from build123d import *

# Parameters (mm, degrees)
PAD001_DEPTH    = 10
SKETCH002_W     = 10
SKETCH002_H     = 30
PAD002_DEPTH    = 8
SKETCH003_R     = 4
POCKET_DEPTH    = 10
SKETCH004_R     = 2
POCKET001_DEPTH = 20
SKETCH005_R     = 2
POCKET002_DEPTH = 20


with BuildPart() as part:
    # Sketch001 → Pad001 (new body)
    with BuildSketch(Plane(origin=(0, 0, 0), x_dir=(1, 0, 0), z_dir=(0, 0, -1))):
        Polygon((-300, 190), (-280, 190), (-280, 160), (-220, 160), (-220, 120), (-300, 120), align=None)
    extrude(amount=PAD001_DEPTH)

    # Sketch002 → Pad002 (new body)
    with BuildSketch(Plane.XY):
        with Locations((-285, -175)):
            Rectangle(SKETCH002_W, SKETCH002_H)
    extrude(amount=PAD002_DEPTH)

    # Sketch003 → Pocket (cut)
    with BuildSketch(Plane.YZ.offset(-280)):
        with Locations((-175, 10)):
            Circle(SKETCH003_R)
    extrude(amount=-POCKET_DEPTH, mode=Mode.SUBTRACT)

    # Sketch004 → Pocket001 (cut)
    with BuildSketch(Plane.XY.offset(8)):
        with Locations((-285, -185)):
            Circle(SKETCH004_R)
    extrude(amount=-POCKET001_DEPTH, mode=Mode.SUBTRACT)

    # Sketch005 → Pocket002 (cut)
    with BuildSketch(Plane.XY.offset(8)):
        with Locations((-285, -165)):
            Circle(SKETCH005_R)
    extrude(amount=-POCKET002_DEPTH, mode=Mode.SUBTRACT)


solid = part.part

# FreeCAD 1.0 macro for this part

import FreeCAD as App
import Part
import Sketcher

doc = App.newDocument("Part")
params = doc.addObject("Spreadsheet::Sheet", "Params")
for row, (alias, value) in enumerate([
    ("sketch1_width", "20 mm"),
    ("sketch1_width2", "80 mm"),
    ("sketch1_height", "70 mm"),
    ("sketch1_height2", "40 mm"),
    ("pad1_length", "10 mm"),
    ("sketch2_width", "10 mm"),
    ("sketch2_height", "30 mm"),
    ("pad2_length", "8 mm"),
    ("sketch3_diameter", "8 mm"),
    ("pocket1_length", "10 mm"),
    ("sketch4_diameter", "4 mm"),
    ("pocket2_length", "20 mm"),
    ("sketch5_diameter", "4 mm"),
    ("pocket3_length", "20 mm"),
], start=1):
    params.set(f"A{row}", alias)
    params.set(f"B{row}", "=" + value)
    params.setAlias(f"B{row}", alias)

body = doc.addObject("PartDesign::Body", "Body")

# Sketch on XY plane
sketch1 = body.newObject("Sketcher::SketchObject", "Sketch")
sketch1.AttachmentSupport = (doc.getObject("XY_Plane"), [""])
sketch1.MapMode = "FlatFace"
sketch1.addGeometry(Part.LineSegment(App.Vector(-280, -190, 0), App.Vector(-300, -190, 0)), False)
sketch1.addGeometry(Part.LineSegment(App.Vector(-300, -190, 0), App.Vector(-300, -120, 0)), False)
sketch1.addGeometry(Part.LineSegment(App.Vector(-300, -120, 0), App.Vector(-220, -120, 0)), False)
sketch1.addGeometry(Part.LineSegment(App.Vector(-220, -120, 0), App.Vector(-220, -160, 0)), False)
sketch1.addGeometry(Part.LineSegment(App.Vector(-220, -160, 0), App.Vector(-280, -160, 0)), False)
sketch1.addGeometry(Part.LineSegment(App.Vector(-280, -160, 0), App.Vector(-280, -190, 0)), False)
sketch1.addConstraint(Sketcher.Constraint("Coincident", 0, 2, 1, 1))
sketch1.addConstraint(Sketcher.Constraint("Coincident", 1, 2, 2, 1))
sketch1.addConstraint(Sketcher.Constraint("Coincident", 2, 2, 3, 1))
sketch1.addConstraint(Sketcher.Constraint("Coincident", 3, 2, 4, 1))
sketch1.addConstraint(Sketcher.Constraint("Coincident", 4, 2, 5, 1))
sketch1.addConstraint(Sketcher.Constraint("Coincident", 5, 2, 0, 1))
sketch1.addConstraint(Sketcher.Constraint("Horizontal", 0))
sketch1.addConstraint(Sketcher.Constraint("Vertical", 1))
sketch1.addConstraint(Sketcher.Constraint("Horizontal", 2))
sketch1.addConstraint(Sketcher.Constraint("Vertical", 3))
sketch1.addConstraint(Sketcher.Constraint("Horizontal", 4))
sketch1.addConstraint(Sketcher.Constraint("Vertical", 5))
sketch1.addConstraint(Sketcher.Constraint("DistanceX", 0, 2, 0, 1, 20.0))
sketch1.addConstraint(Sketcher.Constraint("DistanceX", 2, 1, 2, 2, 80.0))
sketch1.addConstraint(Sketcher.Constraint("DistanceY", 1, 1, 1, 2, 70.0))
sketch1.addConstraint(Sketcher.Constraint("DistanceY", 3, 2, 3, 1, 40.0))
sketch1.addConstraint(Sketcher.Constraint("DistanceX", 0, 2, -1, 1, 300.0))
sketch1.addConstraint(Sketcher.Constraint("DistanceY", 0, 2, -1, 1, 190.0))
sketch1.setExpression("Constraints[12]", "Params.sketch1_width")
sketch1.setExpression("Constraints[13]", "Params.sketch1_width2")
sketch1.setExpression("Constraints[14]", "Params.sketch1_height")
sketch1.setExpression("Constraints[15]", "Params.sketch1_height2")
pad1 = body.newObject("PartDesign::Pad", "Pad")
pad1.Profile = sketch1
pad1.setExpression("Length", "Params.pad1_length")
pad1.Reversed = True

# Sketch on XY plane
sketch2 = body.newObject("Sketcher::SketchObject", "Sketch001")
sketch2.AttachmentSupport = (doc.getObject("XY_Plane"), [""])
sketch2.MapMode = "FlatFace"
sketch2.addGeometry(Part.LineSegment(App.Vector(-290, -160, 0), App.Vector(-290, -190, 0)), False)
sketch2.addGeometry(Part.LineSegment(App.Vector(-290, -190, 0), App.Vector(-280, -190, 0)), False)
sketch2.addGeometry(Part.LineSegment(App.Vector(-280, -190, 0), App.Vector(-280, -160, 0)), False)
sketch2.addGeometry(Part.LineSegment(App.Vector(-280, -160, 0), App.Vector(-290, -160, 0)), False)
sketch2.addConstraint(Sketcher.Constraint("Coincident", 0, 2, 1, 1))
sketch2.addConstraint(Sketcher.Constraint("Coincident", 1, 2, 2, 1))
sketch2.addConstraint(Sketcher.Constraint("Coincident", 2, 2, 3, 1))
sketch2.addConstraint(Sketcher.Constraint("Coincident", 3, 2, 0, 1))
sketch2.addConstraint(Sketcher.Constraint("Vertical", 0))
sketch2.addConstraint(Sketcher.Constraint("Horizontal", 1))
sketch2.addConstraint(Sketcher.Constraint("Vertical", 2))
sketch2.addConstraint(Sketcher.Constraint("Horizontal", 3))
sketch2.addConstraint(Sketcher.Constraint("DistanceX", 1, 1, 1, 2, 10.0))
sketch2.addConstraint(Sketcher.Constraint("DistanceY", 0, 2, 0, 1, 30.0))
sketch2.addConstraint(Sketcher.Constraint("DistanceX", 0, 2, -1, 1, 290.0))
sketch2.addConstraint(Sketcher.Constraint("DistanceY", 0, 2, -1, 1, 190.0))
sketch2.setExpression("Constraints[8]", "Params.sketch2_width")
sketch2.setExpression("Constraints[9]", "Params.sketch2_height")
pad2 = body.newObject("PartDesign::Pad", "Pad001")
pad2.Profile = sketch2
pad2.setExpression("Length", "Params.pad2_length")

# Sketch on YZ plane
sketch3 = body.newObject("Sketcher::SketchObject", "Sketch002")
sketch3.AttachmentSupport = (doc.getObject("YZ_Plane"), [""])
sketch3.MapMode = "FlatFace"
sketch3.AttachmentOffset = App.Placement(App.Vector(0, 0, -280), App.Rotation())
sketch3.addGeometry(Part.Circle(App.Vector(-175, 10, 0), App.Vector(0, 0, 1), 4), False)
sketch3.addConstraint(Sketcher.Constraint("Diameter", 0, 8.0))
sketch3.addConstraint(Sketcher.Constraint("DistanceX", 0, 3, -1, 1, 175.0))
sketch3.addConstraint(Sketcher.Constraint("DistanceY", -1, 1, 0, 3, 10.0))
sketch3.setExpression("Constraints[0]", "Params.sketch3_diameter")
pocket1 = body.newObject("PartDesign::Pocket", "Pocket")
pocket1.Profile = sketch3
pocket1.setExpression("Length", "Params.pocket1_length")

# Sketch on XY plane
sketch4 = body.newObject("Sketcher::SketchObject", "Sketch003")
sketch4.AttachmentSupport = (doc.getObject("XY_Plane"), [""])
sketch4.MapMode = "FlatFace"
sketch4.AttachmentOffset = App.Placement(App.Vector(0, 0, 8), App.Rotation())
sketch4.addGeometry(Part.Circle(App.Vector(-285, -185, 0), App.Vector(0, 0, 1), 2), False)
sketch4.addConstraint(Sketcher.Constraint("Diameter", 0, 4.0))
sketch4.addConstraint(Sketcher.Constraint("DistanceX", 0, 3, -1, 1, 285.0))
sketch4.addConstraint(Sketcher.Constraint("DistanceY", 0, 3, -1, 1, 185.0))
sketch4.setExpression("Constraints[0]", "Params.sketch4_diameter")
pocket2 = body.newObject("PartDesign::Pocket", "Pocket001")
pocket2.Profile = sketch4
pocket2.setExpression("Length", "Params.pocket2_length")

# Sketch on XY plane
sketch5 = body.newObject("Sketcher::SketchObject", "Sketch004")
sketch5.AttachmentSupport = (doc.getObject("XY_Plane"), [""])
sketch5.MapMode = "FlatFace"
sketch5.AttachmentOffset = App.Placement(App.Vector(0, 0, 8), App.Rotation())
sketch5.addGeometry(Part.Circle(App.Vector(-285, -165, 0), App.Vector(0, 0, 1), 2), False)
sketch5.addConstraint(Sketcher.Constraint("Diameter", 0, 4.0))
sketch5.addConstraint(Sketcher.Constraint("DistanceX", 0, 3, -1, 1, 285.0))
sketch5.addConstraint(Sketcher.Constraint("DistanceY", 0, 3, -1, 1, 165.0))
sketch5.setExpression("Constraints[0]", "Params.sketch5_diameter")
pocket3 = body.newObject("PartDesign::Pocket", "Pocket002")
pocket3.Profile = sketch5
pocket3.setExpression("Length", "Params.pocket3_length")

doc.recompute()
